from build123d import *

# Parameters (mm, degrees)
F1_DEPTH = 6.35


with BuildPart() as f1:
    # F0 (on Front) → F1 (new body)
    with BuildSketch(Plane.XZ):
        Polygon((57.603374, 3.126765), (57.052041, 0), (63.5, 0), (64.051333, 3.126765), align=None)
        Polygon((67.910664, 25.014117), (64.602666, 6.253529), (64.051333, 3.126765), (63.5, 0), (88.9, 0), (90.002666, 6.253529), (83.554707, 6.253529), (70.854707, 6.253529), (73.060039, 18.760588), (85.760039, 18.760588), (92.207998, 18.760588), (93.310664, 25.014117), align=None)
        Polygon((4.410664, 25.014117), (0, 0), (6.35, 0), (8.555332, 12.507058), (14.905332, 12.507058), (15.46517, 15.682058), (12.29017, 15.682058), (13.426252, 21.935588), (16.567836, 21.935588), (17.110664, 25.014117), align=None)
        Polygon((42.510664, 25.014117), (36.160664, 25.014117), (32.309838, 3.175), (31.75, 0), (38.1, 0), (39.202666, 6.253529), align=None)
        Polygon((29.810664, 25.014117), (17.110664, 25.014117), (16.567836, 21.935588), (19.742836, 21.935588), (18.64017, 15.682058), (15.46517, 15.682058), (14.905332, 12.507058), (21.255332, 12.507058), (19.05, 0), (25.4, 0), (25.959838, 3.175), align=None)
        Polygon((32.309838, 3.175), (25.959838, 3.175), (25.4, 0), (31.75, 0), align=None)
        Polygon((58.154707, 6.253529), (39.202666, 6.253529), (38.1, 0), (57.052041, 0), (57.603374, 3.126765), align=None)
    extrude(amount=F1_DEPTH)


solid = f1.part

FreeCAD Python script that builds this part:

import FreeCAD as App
import Part
import Sketcher
from FreeCAD import Vector
Q = App.Units.Quantity


def add_polygon(sketch, points):
    """Adds a closed chain of lines whose ends are joined by coincident constraints."""
    first, n = sketch.GeometryCount, len(points)
    for a, b in zip(points, points[1:] + points[:1]):
        sketch.addGeometry(Part.LineSegment(App.Vector(*a, 0), App.Vector(*b, 0)), False)
    for i in range(n):
        sketch.addConstraint(Sketcher.Constraint("Coincident", first + i, 2, first + (i + 1) % n, 1))

doc = App.newDocument("Part")
body = doc.addObject("PartDesign::Body", "Body")

# Sketch on XZ plane
sketch1 = body.newObject("Sketcher::SketchObject", "Sketch")
sketch1.AttachmentSupport = (doc.getObject("XZ_Plane"), [""])
sketch1.MapMode = "FlatFace"
add_polygon(sketch1, [(88.9, 0), (90.002666, 6.253529), (70.854707, 6.253529), (73.060039, 18.760588), (92.207998, 18.760588), (93.310664, 25.014117), (67.910664, 25.014117), (64.602666, 6.253529), (64.051333, 3.126765), (57.603374, 3.126765), (58.154707, 6.253529), (39.202666, 6.253529), (42.510664, 25.014117), (36.160664, 25.014117), (32.309838, 3.175), (25.959838, 3.175), (29.810664, 25.014117), (4.410664, 25.014117), (0, 0), (6.35, 0), (8.555332, 12.507058), (21.255332, 12.507058), (19.05, 0)])  # lines 0-22
add_polygon(sketch1, [(18.64017, 15.682058), (12.29017, 15.682058), (13.426252, 21.935588), (19.742836, 21.935588)])  # lines 23-26
sketch1.addConstraint([
    Sketcher.Constraint("Horizontal", 1),
    Sketcher.Constraint("Horizontal", 3),
    Sketcher.Constraint("Horizontal", 5),
    Sketcher.Constraint("Horizontal", 8),
    Sketcher.Constraint("Horizontal", 10),
    Sketcher.Constraint("Horizontal", 12),
    Sketcher.Constraint("Horizontal", 14),
    Sketcher.Constraint("Horizontal", 16),
    Sketcher.Constraint("Horizontal", 18),
    Sketcher.Constraint("Horizontal", 20),
    Sketcher.Constraint("Horizontal", 22),
    Sketcher.Constraint("Horizontal", 23),
    Sketcher.Constraint("Horizontal", 25),
    Sketcher.Constraint("Coincident", 17, 2, -1, 1),
    Sketcher.Constraint("PointOnObject", 21, 2, -1),
    Sketcher.Constraint("Parallel", 0, 2),
    Sketcher.Constraint("Parallel", 2, 4),
    Sketcher.Constraint("Parallel", 4, 6),
    Sketcher.Constraint("Parallel", 6, 7),
    Sketcher.Constraint("Parallel", 7, 9),
    Sketcher.Constraint("Parallel", 9, 11),
    Sketcher.Constraint("Parallel", 11, 13),
    Sketcher.Constraint("Parallel", 13, 15),
    Sketcher.Constraint("Parallel", 15, 17),
    Sketcher.Constraint("Parallel", 17, 19),
    Sketcher.Constraint("Parallel", 19, 21),
    Sketcher.Constraint("Parallel", 21, 26),
    Sketcher.Constraint("Horizontal", 1, 2, 6, 2),
    Sketcher.Constraint("Horizontal", 6, 2, 9, 2),
    Sketcher.Constraint("Horizontal", 5, 2, 11, 2),
    Sketcher.Constraint("Horizontal", 12, 2, 15, 2),
    Sketcher.Constraint("Equal", 1, 3),
    Sketcher.Constraint("Equal", 12, 14),
    Sketcher.Constraint("Equal", 5, 16),
    Sketcher.Constraint("Equal", 14, 18),
    Sketcher.Constraint("Equal", 18, 23),
    Sketcher.Constraint("Equal", 0, 4),
    Sketcher.Constraint("Equal", 2, 19),
    Sketcher.Constraint("Equal", 4, 26),
    Sketcher.Constraint("DistanceX", 5, 2, 5, 1, Q("1 in")),
    Sketcher.Constraint("Distance", 17, Q("1 in")),
    Sketcher.Constraint("DistanceX", 20, 1, 20, 2, Q("0.5 in")),
    Sketcher.Constraint("Angle", 0, Q("79.999999 deg")),
    Sketcher.Constraint("DistanceX", 10, 2, 6, 2, Q("1 in")),
    Sketcher.Constraint("Distance", 2, Q("0.5 in")),
    Sketcher.Constraint("DistanceX", 12, 2, 12, 1, Q("0.25 in")),
    Sketcher.Constraint("DistanceX", 9, 2, 1, 2, Q("0.5 in")),
    Sketcher.Constraint("Distance", 7, Q("0.125 in")),
    Sketcher.Constraint("DistanceY", -1, 1, 13, 2, Q("0.125 in")),
    Sketcher.Constraint("DistanceY", 19, 2, 23, 2, Q("0.125 in")),
    Sketcher.Constraint("DistanceX", 1, 2, 1, 1, Q("19.147959 mm")),
    Sketcher.Constraint("Distance", 24, Q("6.355889 mm")),
    Sketcher.Constraint("DistanceX", -1, 1, 23, 2, Q("12.29017 mm")),
])
pad1 = body.newObject("PartDesign::Pad", "Pad")
pad1.Profile = sketch1
pad1.Length = Q("0.25 in")

doc.recompute()
